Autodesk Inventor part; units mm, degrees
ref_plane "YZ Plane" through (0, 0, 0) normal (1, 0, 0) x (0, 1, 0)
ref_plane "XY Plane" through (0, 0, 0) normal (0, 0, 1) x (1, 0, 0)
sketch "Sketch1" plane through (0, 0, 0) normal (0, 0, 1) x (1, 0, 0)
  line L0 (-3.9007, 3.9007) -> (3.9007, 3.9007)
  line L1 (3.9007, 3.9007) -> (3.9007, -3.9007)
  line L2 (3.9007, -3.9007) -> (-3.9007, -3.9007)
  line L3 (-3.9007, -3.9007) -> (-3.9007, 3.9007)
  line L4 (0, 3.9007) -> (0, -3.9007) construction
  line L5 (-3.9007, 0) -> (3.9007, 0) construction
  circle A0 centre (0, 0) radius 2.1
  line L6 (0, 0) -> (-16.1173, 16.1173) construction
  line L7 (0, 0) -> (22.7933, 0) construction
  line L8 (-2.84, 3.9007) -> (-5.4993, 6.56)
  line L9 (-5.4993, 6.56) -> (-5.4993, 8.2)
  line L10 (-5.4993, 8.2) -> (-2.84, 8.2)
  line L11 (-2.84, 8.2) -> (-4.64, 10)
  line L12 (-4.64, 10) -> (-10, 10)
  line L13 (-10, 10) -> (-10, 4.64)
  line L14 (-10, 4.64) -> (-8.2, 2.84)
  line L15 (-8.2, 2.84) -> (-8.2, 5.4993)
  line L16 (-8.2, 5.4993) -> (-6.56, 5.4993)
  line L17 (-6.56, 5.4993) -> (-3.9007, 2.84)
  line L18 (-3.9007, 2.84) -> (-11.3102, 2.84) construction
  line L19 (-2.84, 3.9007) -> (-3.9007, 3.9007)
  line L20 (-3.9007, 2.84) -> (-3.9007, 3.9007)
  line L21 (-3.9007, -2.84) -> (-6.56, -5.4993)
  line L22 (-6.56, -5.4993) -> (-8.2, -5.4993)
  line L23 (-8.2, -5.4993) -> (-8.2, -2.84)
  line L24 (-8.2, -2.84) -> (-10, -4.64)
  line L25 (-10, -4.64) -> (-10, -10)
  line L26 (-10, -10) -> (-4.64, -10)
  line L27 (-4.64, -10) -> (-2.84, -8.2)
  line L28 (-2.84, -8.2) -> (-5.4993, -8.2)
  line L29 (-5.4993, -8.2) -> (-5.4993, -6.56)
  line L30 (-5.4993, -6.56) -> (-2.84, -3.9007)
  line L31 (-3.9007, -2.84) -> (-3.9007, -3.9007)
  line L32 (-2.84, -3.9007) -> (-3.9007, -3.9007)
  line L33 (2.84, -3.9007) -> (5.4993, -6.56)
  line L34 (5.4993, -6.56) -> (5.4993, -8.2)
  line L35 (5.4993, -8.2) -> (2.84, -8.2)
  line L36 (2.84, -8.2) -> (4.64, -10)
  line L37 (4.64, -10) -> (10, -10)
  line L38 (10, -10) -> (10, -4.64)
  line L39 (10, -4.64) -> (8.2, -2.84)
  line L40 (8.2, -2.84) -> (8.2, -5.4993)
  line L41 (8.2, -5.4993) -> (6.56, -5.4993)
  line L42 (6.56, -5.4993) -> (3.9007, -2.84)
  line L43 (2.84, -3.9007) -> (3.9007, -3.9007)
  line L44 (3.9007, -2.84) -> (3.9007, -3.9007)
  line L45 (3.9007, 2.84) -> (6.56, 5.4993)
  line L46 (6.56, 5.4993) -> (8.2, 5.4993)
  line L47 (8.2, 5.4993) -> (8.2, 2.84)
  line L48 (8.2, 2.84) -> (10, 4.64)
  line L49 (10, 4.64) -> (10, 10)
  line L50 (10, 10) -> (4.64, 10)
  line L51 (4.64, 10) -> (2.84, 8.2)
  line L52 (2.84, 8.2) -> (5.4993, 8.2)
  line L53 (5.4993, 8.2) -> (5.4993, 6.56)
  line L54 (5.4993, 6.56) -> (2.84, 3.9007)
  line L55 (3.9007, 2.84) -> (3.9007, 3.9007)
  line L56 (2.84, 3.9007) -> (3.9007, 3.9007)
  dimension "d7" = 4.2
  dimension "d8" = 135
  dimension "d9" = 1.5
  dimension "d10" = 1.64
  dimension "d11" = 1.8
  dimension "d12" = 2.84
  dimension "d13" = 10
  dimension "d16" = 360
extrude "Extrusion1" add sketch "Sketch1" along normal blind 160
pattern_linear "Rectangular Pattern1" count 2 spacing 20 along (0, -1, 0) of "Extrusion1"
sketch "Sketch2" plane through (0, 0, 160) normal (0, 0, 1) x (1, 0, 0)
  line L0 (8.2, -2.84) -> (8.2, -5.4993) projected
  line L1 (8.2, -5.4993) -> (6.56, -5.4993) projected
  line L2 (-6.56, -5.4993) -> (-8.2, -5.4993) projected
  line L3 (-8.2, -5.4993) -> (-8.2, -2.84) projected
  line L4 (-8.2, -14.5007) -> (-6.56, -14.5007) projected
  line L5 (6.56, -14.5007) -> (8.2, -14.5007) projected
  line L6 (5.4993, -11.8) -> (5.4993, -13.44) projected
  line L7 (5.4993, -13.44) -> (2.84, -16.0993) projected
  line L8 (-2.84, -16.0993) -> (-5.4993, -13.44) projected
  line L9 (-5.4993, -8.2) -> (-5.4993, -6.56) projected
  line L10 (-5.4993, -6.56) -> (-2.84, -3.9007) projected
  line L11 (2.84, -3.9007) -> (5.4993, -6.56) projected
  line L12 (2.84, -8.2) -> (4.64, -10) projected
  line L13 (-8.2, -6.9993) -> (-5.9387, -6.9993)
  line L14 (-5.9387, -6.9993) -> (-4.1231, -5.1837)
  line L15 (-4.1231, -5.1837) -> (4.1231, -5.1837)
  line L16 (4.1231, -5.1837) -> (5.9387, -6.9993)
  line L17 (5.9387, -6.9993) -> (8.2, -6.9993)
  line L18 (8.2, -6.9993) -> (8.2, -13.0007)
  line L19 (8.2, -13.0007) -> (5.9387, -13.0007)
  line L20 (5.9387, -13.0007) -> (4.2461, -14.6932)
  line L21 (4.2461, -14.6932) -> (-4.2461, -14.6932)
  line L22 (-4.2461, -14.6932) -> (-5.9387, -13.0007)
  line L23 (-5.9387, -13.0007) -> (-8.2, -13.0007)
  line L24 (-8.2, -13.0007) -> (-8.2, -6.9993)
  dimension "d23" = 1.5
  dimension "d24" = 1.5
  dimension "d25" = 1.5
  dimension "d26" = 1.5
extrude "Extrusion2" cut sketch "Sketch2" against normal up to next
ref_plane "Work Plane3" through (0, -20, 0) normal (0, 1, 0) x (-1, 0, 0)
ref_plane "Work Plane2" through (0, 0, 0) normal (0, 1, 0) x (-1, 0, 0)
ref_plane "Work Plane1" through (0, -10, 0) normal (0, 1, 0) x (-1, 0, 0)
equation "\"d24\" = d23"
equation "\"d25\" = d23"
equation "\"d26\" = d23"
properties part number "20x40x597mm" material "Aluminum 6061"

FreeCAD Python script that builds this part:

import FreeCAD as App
import Part
import Sketcher
from FreeCAD import Vector
Q = App.Units.Quantity

doc = App.newDocument("Part")
body = doc.addObject("PartDesign::Body", "Body")

# Sketch on XY plane
sketch1 = body.newObject("Sketcher::SketchObject", "Sketch")
sketch1.AttachmentSupport = (doc.getObject("XY_Plane"), [""])
sketch1.MapMode = "FlatFace"
sketch1.addGeometry([
    Part.LineSegment(Vector(-6.6, 5.5, 0), Vector(-3.9, 2.8, 0)),  # 0
    Part.LineSegment(Vector(-3.9, 2.8, 0), Vector(-3.9, -2.8, 0)),  # 1
    Part.LineSegment(Vector(-3.9, -2.8, 0), Vector(-6.6, -5.5, 0)),  # 2
    Part.LineSegment(Vector(-6.6, -5.5, 0), Vector(-8.2, -5.5, 0)),  # 3
    Part.LineSegment(Vector(-8.2, -5.5, 0), Vector(-8.2, -2.8, 0)),  # 4
    Part.LineSegment(Vector(-8.2, -2.8, 0), Vector(-10, -4.6, 0)),  # 5
    Part.LineSegment(Vector(-10, -4.6, 0), Vector(-10, -10, 0)),  # 6
    Part.LineSegment(Vector(-10, -10, 0), Vector(-4.6, -10, 0)),  # 7
    Part.LineSegment(Vector(-4.6, -10, 0), Vector(-2.8, -8.2, 0)),  # 8
    Part.LineSegment(Vector(-2.8, -8.2, 0), Vector(-5.5, -8.2, 0)),  # 9
    Part.LineSegment(Vector(-5.5, -8.2, 0), Vector(-5.5, -6.6, 0)),  # 10
    Part.LineSegment(Vector(-5.5, -6.6, 0), Vector(-2.8, -3.9, 0)),  # 11
    Part.LineSegment(Vector(-2.8, -3.9, 0), Vector(2.8, -3.9, 0)),  # 12
    Part.LineSegment(Vector(2.8, -3.9, 0), Vector(5.5, -6.6, 0)),  # 13
    Part.LineSegment(Vector(5.5, -6.6, 0), Vector(5.5, -8.2, 0)),  # 14
    Part.LineSegment(Vector(5.5, -8.2, 0), Vector(2.8, -8.2, 0)),  # 15
    Part.LineSegment(Vector(2.8, -8.2, 0), Vector(4.6, -10, 0)),  # 16
    Part.LineSegment(Vector(4.6, -10, 0), Vector(10, -10, 0)),  # 17
    Part.LineSegment(Vector(10, -10, 0), Vector(10, -4.6, 0)),  # 18
    Part.LineSegment(Vector(10, -4.6, 0), Vector(8.2, -2.8, 0)),  # 19
    Part.LineSegment(Vector(8.2, -2.8, 0), Vector(8.2, -5.5, 0)),  # 20
    Part.LineSegment(Vector(8.2, -5.5, 0), Vector(6.6, -5.5, 0)),  # 21
    Part.LineSegment(Vector(6.6, -5.5, 0), Vector(3.9, -2.8, 0)),  # 22
    Part.LineSegment(Vector(3.9, -2.8, 0), Vector(3.9, 2.8, 0)),  # 23
    Part.LineSegment(Vector(3.9, 2.8, 0), Vector(6.6, 5.5, 0)),  # 24
    Part.LineSegment(Vector(6.6, 5.5, 0), Vector(8.2, 5.5, 0)),  # 25
    Part.LineSegment(Vector(8.2, 5.5, 0), Vector(8.2, 2.8, 0)),  # 26
    Part.LineSegment(Vector(8.2, 2.8, 0), Vector(10, 4.6, 0)),  # 27
    Part.LineSegment(Vector(10, 4.6, 0), Vector(10, 10, 0)),  # 28
    Part.LineSegment(Vector(10, 10, 0), Vector(4.6, 10, 0)),  # 29
    Part.LineSegment(Vector(4.6, 10, 0), Vector(2.8, 8.2, 0)),  # 30
    Part.LineSegment(Vector(2.8, 8.2, 0), Vector(5.5, 8.2, 0)),  # 31
    Part.LineSegment(Vector(5.5, 8.2, 0), Vector(5.5, 6.6, 0)),  # 32
    Part.LineSegment(Vector(5.5, 6.6, 0), Vector(2.8, 3.9, 0)),  # 33
    Part.LineSegment(Vector(2.8, 3.9, 0), Vector(-2.8, 3.9, 0)),  # 34
    Part.LineSegment(Vector(-2.8, 3.9, 0), Vector(-5.5, 6.6, 0)),  # 35
    Part.LineSegment(Vector(-5.5, 6.6, 0), Vector(-5.5, 8.2, 0)),  # 36
    Part.LineSegment(Vector(-5.5, 8.2, 0), Vector(-2.8, 8.2, 0)),  # 37
    Part.LineSegment(Vector(-2.8, 8.2, 0), Vector(-4.6, 10, 0)),  # 38
    Part.LineSegment(Vector(-4.6, 10, 0), Vector(-10, 10, 0)),  # 39
    Part.LineSegment(Vector(-10, 10, 0), Vector(-10, 4.6, 0)),  # 40
    Part.LineSegment(Vector(-10, 4.6, 0), Vector(-8.2, 2.8, 0)),  # 41
    Part.LineSegment(Vector(-8.2, 2.8, 0), Vector(-8.2, 5.5, 0)),  # 42
    Part.LineSegment(Vector(-8.2, 5.5, 0), Vector(-6.6, 5.5, 0)),  # 43
    Part.Circle(Vector(0, 0, 0), Vector(0, 0, 1), 2.1),  # 44
], False)
sketch1.addConstraint([
    Sketcher.Constraint("Coincident", 0, 2, 1, 1),
    Sketcher.Constraint("Coincident", 1, 2, 2, 1),
    Sketcher.Constraint("Coincident", 2, 2, 3, 1),
    Sketcher.Constraint("Coincident", 3, 2, 4, 1),
    Sketcher.Constraint("Coincident", 4, 2, 5, 1),
    Sketcher.Constraint("Coincident", 5, 2, 6, 1),
    Sketcher.Constraint("Coincident", 6, 2, 7, 1),
    Sketcher.Constraint("Coincident", 7, 2, 8, 1),
    Sketcher.Constraint("Coincident", 8, 2, 9, 1),
    Sketcher.Constraint("Coincident", 9, 2, 10, 1),
    Sketcher.Constraint("Coincident", 10, 2, 11, 1),
    Sketcher.Constraint("Coincident", 11, 2, 12, 1),
    Sketcher.Constraint("Coincident", 12, 2, 13, 1),
    Sketcher.Constraint("Coincident", 13, 2, 14, 1),
    Sketcher.Constraint("Coincident", 14, 2, 15, 1),
    Sketcher.Constraint("Coincident", 15, 2, 16, 1),
    Sketcher.Constraint("Coincident", 16, 2, 17, 1),
    Sketcher.Constraint("Coincident", 17, 2, 18, 1),
    Sketcher.Constraint("Coincident", 18, 2, 19, 1),
    Sketcher.Constraint("Coincident", 19, 2, 20, 1),
    Sketcher.Constraint("Coincident", 20, 2, 21, 1),
    Sketcher.Constraint("Coincident", 21, 2, 22, 1),
    Sketcher.Constraint("Coincident", 22, 2, 23, 1),
    Sketcher.Constraint("Coincident", 23, 2, 24, 1),
    Sketcher.Constraint("Coincident", 24, 2, 25, 1),
    Sketcher.Constraint("Coincident", 25, 2, 26, 1),
    Sketcher.Constraint("Coincident", 26, 2, 27, 1),
    Sketcher.Constraint("Coincident", 27, 2, 28, 1),
    Sketcher.Constraint("Coincident", 28, 2, 29, 1),
    Sketcher.Constraint("Coincident", 29, 2, 30, 1),
    Sketcher.Constraint("Coincident", 30, 2, 31, 1),
    Sketcher.Constraint("Coincident", 31, 2, 32, 1),
    Sketcher.Constraint("Coincident", 32, 2, 33, 1),
    Sketcher.Constraint("Coincident", 33, 2, 34, 1),
    Sketcher.Constraint("Coincident", 34, 2, 35, 1),
    Sketcher.Constraint("Coincident", 35, 2, 36, 1),
    Sketcher.Constraint("Coincident", 36, 2, 37, 1),
    Sketcher.Constraint("Coincident", 37, 2, 38, 1),
    Sketcher.Constraint("Coincident", 38, 2, 39, 1),
    Sketcher.Constraint("Coincident", 39, 2, 40, 1),
    Sketcher.Constraint("Coincident", 40, 2, 41, 1),
    Sketcher.Constraint("Coincident", 41, 2, 42, 1),
    Sketcher.Constraint("Coincident", 42, 2, 43, 1),
    Sketcher.Constraint("Coincident", 43, 2, 0, 1),
    Sketcher.Constraint("Vertical", 1),
    Sketcher.Constraint("Horizontal", 3),
    Sketcher.Constraint("Vertical", 4),
    Sketcher.Constraint("Vertical", 6),
    Sketcher.Constraint("Horizontal", 7),
    Sketcher.Constraint("Horizontal", 9),
    Sketcher.Constraint("Vertical", 10),
    Sketcher.Constraint("Horizontal", 12),
    Sketcher.Constraint("Vertical", 14),
    Sketcher.Constraint("Horizontal", 15),
    Sketcher.Constraint("Horizontal", 17),
    Sketcher.Constraint("Vertical", 18),
    Sketcher.Constraint("Vertical", 20),
    Sketcher.Constraint("Horizontal", 21),
    Sketcher.Constraint("Vertical", 23),
    Sketcher.Constraint("Horizontal", 25),
    Sketcher.Constraint("Vertical", 26),
    Sketcher.Constraint("Vertical", 28),
    Sketcher.Constraint("Horizontal", 29),
    Sketcher.Constraint("Horizontal", 31),
    Sketcher.Constraint("Vertical", 32),
    Sketcher.Constraint("Horizontal", 34),
    Sketcher.Constraint("Vertical", 36),
    Sketcher.Constraint("Horizontal", 37),
    Sketcher.Constraint("Horizontal", 39),
    Sketcher.Constraint("Vertical", 40),
    Sketcher.Constraint("Vertical", 42),
    Sketcher.Constraint("Horizontal", 43),
    Sketcher.Constraint("Coincident", 44, 3, -1, 1),
    Sketcher.Constraint("Symmetric", 0, 2, 22, 2, -1, 1),
    Sketcher.Constraint("Symmetric", 2, 2, 24, 2, -1, 1),
    Sketcher.Constraint("Symmetric", 4, 2, 26, 2, -1, 1),
    Sketcher.Constraint("Symmetric", 5, 2, 27, 2, -1, 1),
    Sketcher.Constraint("Symmetric", 7, 2, 29, 2, -1, 1),
    Sketcher.Constraint("Symmetric", 8, 2, 30, 2, -1, 1),
    Sketcher.Constraint("Symmetric", 10, 2, 32, 2, -1, 1),
    Sketcher.Constraint("Symmetric", 11, 2, 33, 2, -1, 1),
    Sketcher.Constraint("Symmetric", 13, 2, 35, 2, -1, 1),
    Sketcher.Constraint("Symmetric", 15, 2, 37, 2, -1, 1),
    Sketcher.Constraint("Symmetric", 16, 2, 38, 2, -1, 1),
    Sketcher.Constraint("Symmetric", 18, 2, 40, 2, -1, 1),
    Sketcher.Constraint("Symmetric", 19, 2, 41, 2, -1, 1),
    Sketcher.Constraint("Symmetric", 21, 2, 43, 2, -1, 1),
    Sketcher.Constraint("Symmetric", 10, 2, 13, 2, -2),
    Sketcher.Constraint("Symmetric", 8, 2, 15, 2, -2),
    Sketcher.Constraint("Symmetric", 7, 2, 16, 2, -2),
    Sketcher.Constraint("Symmetric", 5, 2, 18, 2, -2),
    Sketcher.Constraint("Symmetric", 4, 2, 19, 2, -2),
    Sketcher.Constraint("Symmetric", 2, 2, 21, 2, -2),
    Sketcher.Constraint("Perpendicular", 0, 2),
    Sketcher.Constraint("Parallel", 2, 5),
    Sketcher.Constraint("Parallel", 5, 8),
    Sketcher.Constraint("Parallel", 8, 11),
    Sketcher.Constraint("Perpendicular", 11, 13),
    Sketcher.Constraint("Parallel", 13, 16),
    Sketcher.Constraint("Perpendicular", 22, 24),
    Sketcher.Constraint("Perpendicular", 33, 35),
    Sketcher.Constraint("Horizontal", 1, 2, 4, 2),
    Sketcher.Constraint("Vertical", 8, 2, 11, 2),
    Sketcher.Constraint("Equal", 34, 1),
    Sketcher.Constraint("Equal", 37, 4),
    Sketcher.Constraint("Equal", 39, 6),
    Sketcher.Constraint("Equal", 43, 10),
    Sketcher.Constraint("Equal", 5, 8),
    Sketcher.Constraint("Diameter", 44, Q("4.2 mm")),
    Sketcher.Constraint("DistanceX", 5, 2, -1, 1, Q("10 mm")),
    Sketcher.Constraint("DistanceX", 3, 2, 3, 1, Q("1.64 mm")),
    Sketcher.Constraint("DistanceX", 5, 2, 3, 2, Q("1.8 mm")),
    Sketcher.Constraint("DistanceY", -1, 1, 0, 2, Q("2.84 mm")),
    Sketcher.Constraint("DistanceX", 9, 2, 9, 1, Q("2.6593 mm")),
])
pad1 = body.newObject("PartDesign::Pad", "Pad")
pad1.Profile = sketch1
pad1.Length = 160
doc.recompute()

linearpattern = body.newObject("PartDesign::LinearPattern", "LinearPattern")
linearpattern.Originals = [pad1]
linearpattern.Direction = (doc.getObject("Y_Axis"), [""])
linearpattern.Mode = "offset"
linearpattern.Offset = 20
linearpattern.Occurrences = 2
linearpattern.Reversed = True
body.Tip = linearpattern

# Sketch on XY plane
sketch2 = body.newObject("Sketcher::SketchObject", "Sketch001")
sketch2.AttachmentSupport = (doc.getObject("XY_Plane"), [""])
sketch2.MapMode = "FlatFace"
sketch2.AttachmentOffset = App.Placement(Vector(0, 0, 160), App.Rotation())
sketch2.addGeometry([
    Part.LineSegment(Vector(4.2, -14.7, 0), Vector(5.5, -13.4, 0)),  # 0
    Part.LineSegment(Vector(5.5, -13.4, 0), Vector(5.9, -13, 0)),  # 1
    Part.LineSegment(Vector(5.9, -13, 0), Vector(8.2, -13, 0)),  # 2
    Part.LineSegment(Vector(8.2, -13, 0), Vector(8.2, -7, 0)),  # 3
    Part.LineSegment(Vector(8.2, -7, 0), Vector(5.9, -7, 0)),  # 4
    Part.LineSegment(Vector(5.9, -7, 0), Vector(5.5, -6.6, 0)),  # 5
    Part.LineSegment(Vector(5.5, -6.6, 0), Vector(4.1, -5.2, 0)),  # 6
    Part.LineSegment(Vector(4.1, -5.2, 0), Vector(-4.1, -5.2, 0)),  # 7
    Part.LineSegment(Vector(-4.1, -5.2, 0), Vector(-5.5, -6.6, 0)),  # 8
    Part.LineSegment(Vector(-5.5, -6.6, 0), Vector(-5.9, -7, 0)),  # 9
    Part.LineSegment(Vector(-5.9, -7, 0), Vector(-8.2, -7, 0)),  # 10
    Part.LineSegment(Vector(-8.2, -7, 0), Vector(-8.2, -13, 0)),  # 11
    Part.LineSegment(Vector(-8.2, -13, 0), Vector(-5.9, -13, 0)),  # 12
    Part.LineSegment(Vector(-5.9, -13, 0), Vector(-5.5, -13.4, 0)),  # 13
    Part.LineSegment(Vector(-5.5, -13.4, 0), Vector(-4.2, -14.7, 0)),  # 14
    Part.LineSegment(Vector(-4.2, -14.7, 0), Vector(4.2, -14.7, 0)),  # 15
], False)
sketch2.addConstraint([
    Sketcher.Constraint("Coincident", 0, 2, 1, 1),
    Sketcher.Constraint("Coincident", 1, 2, 2, 1),
    Sketcher.Constraint("Coincident", 2, 2, 3, 1),
    Sketcher.Constraint("Coincident", 3, 2, 4, 1),
    Sketcher.Constraint("Coincident", 4, 2, 5, 1),
    Sketcher.Constraint("Coincident", 5, 2, 6, 1),
    Sketcher.Constraint("Coincident", 6, 2, 7, 1),
    Sketcher.Constraint("Coincident", 7, 2, 8, 1),
    Sketcher.Constraint("Coincident", 8, 2, 9, 1),
    Sketcher.Constraint("Coincident", 9, 2, 10, 1),
    Sketcher.Constraint("Coincident", 10, 2, 11, 1),
    Sketcher.Constraint("Coincident", 11, 2, 12, 1),
    Sketcher.Constraint("Coincident", 12, 2, 13, 1),
    Sketcher.Constraint("Coincident", 13, 2, 14, 1),
    Sketcher.Constraint("Coincident", 14, 2, 15, 1),
    Sketcher.Constraint("Coincident", 15, 2, 0, 1),
    Sketcher.Constraint("Horizontal", 2),
    Sketcher.Constraint("Vertical", 3),
    Sketcher.Constraint("Horizontal", 4),
    Sketcher.Constraint("Horizontal", 7),
    Sketcher.Constraint("Horizontal", 10),
    Sketcher.Constraint("Vertical", 11),
    Sketcher.Constraint("Horizontal", 12),
    Sketcher.Constraint("Horizontal", 15),
    Sketcher.Constraint("Symmetric", 5, 2, 8, 2, -2),
    Sketcher.Constraint("Symmetric", 4, 2, 9, 2, -2),
    Sketcher.Constraint("Symmetric", 2, 2, 11, 2, -2),
    Sketcher.Constraint("Symmetric", 0, 2, 13, 2, -2),
    Sketcher.Constraint("Parallel", 0, 1),
    Sketcher.Constraint("Perpendicular", 1, 5),
    Sketcher.Constraint("Parallel", 5, 6),
    Sketcher.Constraint("Perpendicular", 6, 8),
    Sketcher.Constraint("Parallel", 8, 9),
    Sketcher.Constraint("Perpendicular", 9, 13),
    Sketcher.Constraint("Parallel", 13, 14),
    Sketcher.Constraint("Vertical", 1, 2, 4, 2),
    Sketcher.Constraint("Vertical", 0, 2, 5, 2),
    Sketcher.Constraint("DistanceX", -1, 1, 2, 2, Q("8.2 mm")),
    Sketcher.Constraint("DistanceY", 0, 2, -1, 1, Q("13.44 mm")),
    Sketcher.Constraint("DistanceY", 5, 2, -1, 1, Q("6.56 mm")),
    Sketcher.Constraint("DistanceX", 2, 1, 2, 2, Q("2.2613 mm")),
    Sketcher.Constraint("DistanceX", 7, 2, 7, 1, Q("8.2462 mm")),
    Sketcher.Constraint("DistanceX", 15, 1, 15, 2, Q("8.4922 mm")),
    Sketcher.Constraint("DistanceY", 3, 1, 3, 2, Q("6.0014 mm")),
])
pocket1 = body.newObject("PartDesign::Pocket", "Pocket")
pocket1.Profile = sketch2
pocket1.Length = 160

doc.recompute()
